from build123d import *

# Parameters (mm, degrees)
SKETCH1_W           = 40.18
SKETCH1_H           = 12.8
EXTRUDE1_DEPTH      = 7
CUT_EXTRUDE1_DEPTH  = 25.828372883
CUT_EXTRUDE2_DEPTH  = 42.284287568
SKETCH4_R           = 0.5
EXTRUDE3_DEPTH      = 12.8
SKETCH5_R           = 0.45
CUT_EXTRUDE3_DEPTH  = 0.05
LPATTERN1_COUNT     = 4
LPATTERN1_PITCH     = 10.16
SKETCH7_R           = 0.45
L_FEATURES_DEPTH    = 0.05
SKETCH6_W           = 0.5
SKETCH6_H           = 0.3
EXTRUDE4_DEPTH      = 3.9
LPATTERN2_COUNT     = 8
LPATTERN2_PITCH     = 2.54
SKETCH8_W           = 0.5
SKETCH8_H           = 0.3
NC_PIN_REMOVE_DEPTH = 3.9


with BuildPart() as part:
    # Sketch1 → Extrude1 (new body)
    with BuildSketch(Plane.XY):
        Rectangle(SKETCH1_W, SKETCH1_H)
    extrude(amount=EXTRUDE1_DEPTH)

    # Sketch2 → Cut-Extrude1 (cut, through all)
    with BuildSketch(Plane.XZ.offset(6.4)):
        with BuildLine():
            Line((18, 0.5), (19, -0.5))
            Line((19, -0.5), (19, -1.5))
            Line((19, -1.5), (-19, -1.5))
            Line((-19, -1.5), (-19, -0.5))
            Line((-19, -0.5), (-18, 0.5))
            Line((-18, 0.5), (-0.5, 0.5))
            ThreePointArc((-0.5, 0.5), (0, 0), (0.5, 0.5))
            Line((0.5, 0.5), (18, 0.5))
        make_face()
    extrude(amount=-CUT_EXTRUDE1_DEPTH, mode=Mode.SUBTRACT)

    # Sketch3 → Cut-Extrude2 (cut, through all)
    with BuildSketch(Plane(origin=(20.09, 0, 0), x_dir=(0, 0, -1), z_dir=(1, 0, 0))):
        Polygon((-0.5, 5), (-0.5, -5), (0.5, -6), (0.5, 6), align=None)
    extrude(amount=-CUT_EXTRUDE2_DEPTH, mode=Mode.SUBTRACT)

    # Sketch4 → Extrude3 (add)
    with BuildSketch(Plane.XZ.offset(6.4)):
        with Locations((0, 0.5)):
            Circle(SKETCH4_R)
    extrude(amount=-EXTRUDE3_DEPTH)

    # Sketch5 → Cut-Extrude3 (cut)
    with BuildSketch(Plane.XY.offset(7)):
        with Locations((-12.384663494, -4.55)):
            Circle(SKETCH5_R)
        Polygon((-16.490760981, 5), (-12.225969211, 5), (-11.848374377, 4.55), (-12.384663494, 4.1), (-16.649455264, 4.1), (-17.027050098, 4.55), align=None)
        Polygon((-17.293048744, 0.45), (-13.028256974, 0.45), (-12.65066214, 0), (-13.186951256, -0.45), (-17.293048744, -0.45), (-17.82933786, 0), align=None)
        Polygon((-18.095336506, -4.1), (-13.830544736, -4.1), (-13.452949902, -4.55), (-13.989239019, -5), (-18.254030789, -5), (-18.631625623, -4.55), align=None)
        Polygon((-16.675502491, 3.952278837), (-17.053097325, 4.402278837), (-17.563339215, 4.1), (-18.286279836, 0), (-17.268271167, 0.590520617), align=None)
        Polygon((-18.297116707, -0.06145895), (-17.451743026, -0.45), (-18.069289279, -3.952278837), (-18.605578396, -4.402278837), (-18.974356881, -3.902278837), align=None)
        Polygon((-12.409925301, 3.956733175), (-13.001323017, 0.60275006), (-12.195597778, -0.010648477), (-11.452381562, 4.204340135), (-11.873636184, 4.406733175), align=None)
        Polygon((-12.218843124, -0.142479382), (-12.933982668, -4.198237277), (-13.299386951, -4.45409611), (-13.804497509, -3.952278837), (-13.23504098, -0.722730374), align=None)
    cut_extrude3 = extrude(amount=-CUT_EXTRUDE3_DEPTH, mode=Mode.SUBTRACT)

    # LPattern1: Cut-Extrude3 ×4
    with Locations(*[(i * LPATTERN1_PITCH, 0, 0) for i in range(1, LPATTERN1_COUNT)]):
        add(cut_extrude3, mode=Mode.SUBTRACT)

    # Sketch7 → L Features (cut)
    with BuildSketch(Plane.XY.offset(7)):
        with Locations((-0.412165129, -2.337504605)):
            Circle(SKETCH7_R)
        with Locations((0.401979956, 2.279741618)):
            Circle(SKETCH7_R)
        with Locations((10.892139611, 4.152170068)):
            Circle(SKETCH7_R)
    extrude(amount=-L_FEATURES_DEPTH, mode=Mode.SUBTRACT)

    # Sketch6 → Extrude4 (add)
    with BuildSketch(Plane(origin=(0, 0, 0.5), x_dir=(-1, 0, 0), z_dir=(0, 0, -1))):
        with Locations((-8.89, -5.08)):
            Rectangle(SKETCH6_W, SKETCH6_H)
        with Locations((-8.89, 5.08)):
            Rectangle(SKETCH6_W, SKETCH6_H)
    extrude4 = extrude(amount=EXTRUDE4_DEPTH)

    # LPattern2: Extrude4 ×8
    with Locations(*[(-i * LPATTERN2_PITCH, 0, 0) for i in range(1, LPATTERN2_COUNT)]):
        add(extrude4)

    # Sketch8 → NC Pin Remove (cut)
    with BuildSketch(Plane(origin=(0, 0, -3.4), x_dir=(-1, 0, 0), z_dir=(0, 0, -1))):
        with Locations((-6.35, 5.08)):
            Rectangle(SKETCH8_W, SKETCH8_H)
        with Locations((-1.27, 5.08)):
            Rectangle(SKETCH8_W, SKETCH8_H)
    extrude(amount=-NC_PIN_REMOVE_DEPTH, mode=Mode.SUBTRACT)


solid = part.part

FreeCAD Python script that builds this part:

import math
import FreeCAD as App
import Part
import Sketcher

V = App.Vector
Q = App.Units.Quantity

doc = App.newDocument("Part")
params = doc.addObject("Spreadsheet::Sheet", "Params")
for row, (alias, value) in enumerate([
    ("sketch1_height", "12.8 mm"),
    ("sketch1_width", "40.18 mm"),
    ("pad1_length", "7 mm"),
    ("sketch2_radius", "0.5 mm"),
    ("sketch2_width", "38 mm"),
    ("sketch2_height", "1 mm"),
    ("sketch2_width2", "17.5 mm"),
    ("sketch3_width", "10 mm"),
    ("sketch3_width2", "12 mm"),
    ("sketch4_diameter", "1 mm"),
    ("pad2_length", "12.8 mm"),
    ("sketch5_diameter", "0.9 mm"),
    ("pocket3_length", "0.05 mm"),
    ("linearpattern_pitch", "10.16 mm"),
    ("sketch6_diameter", "0.9 mm"),
    ("pocket4_length", "0.05 mm"),
    ("sketch7_width", "0.5 mm"),
    ("sketch7_height", "0.3 mm"),
    ("pad3_length", "3.9 mm"),
    ("linearpattern2_pitch", "2.54 mm"),
    ("sketch8_width", "0.5 mm"),
    ("sketch8_height", "0.3 mm"),
    ("pocket5_length", "3.9 mm"),
], start=1):
    params.set(f"A{row}", alias)
    params.set(f"B{row}", "=" + value)
    params.setAlias(f"B{row}", alias)

body = doc.addObject("PartDesign::Body", "Body")

sketch1 = body.newObject("Sketcher::SketchObject", "Sketch")
sketch1.AttachmentSupport = (doc.getObject("XY_Plane"), [""])
sketch1.MapMode = "FlatFace"
sketch1.addGeometry(Part.LineSegment(V(-20.09, 6.4, 0), V(-20.09, -6.4, 0)), False)
sketch1.addGeometry(Part.LineSegment(V(-20.09, -6.4, 0), V(20.09, -6.4, 0)), False)
sketch1.addGeometry(Part.LineSegment(V(20.09, -6.4, 0), V(20.09, 6.4, 0)), False)
sketch1.addGeometry(Part.LineSegment(V(20.09, 6.4, 0), V(-20.09, 6.4, 0)), False)
sketch1.addConstraint(Sketcher.Constraint("Coincident", 0, 2, 1, 1))
sketch1.addConstraint(Sketcher.Constraint("Coincident", 1, 2, 2, 1))
sketch1.addConstraint(Sketcher.Constraint("Coincident", 2, 2, 3, 1))
sketch1.addConstraint(Sketcher.Constraint("Coincident", 3, 2, 0, 1))
sketch1.addConstraint(Sketcher.Constraint("Vertical", 0))
sketch1.addConstraint(Sketcher.Constraint("Horizontal", 1))
sketch1.addConstraint(Sketcher.Constraint("Vertical", 2))
sketch1.addConstraint(Sketcher.Constraint("Horizontal", 3))
sketch1.addConstraint(Sketcher.Constraint("Symmetric", 0, 2, 2, 2, -1, 1))
sketch1.addConstraint(Sketcher.Constraint("DistanceY", 0, 2, 0, 1, Q("12.8 mm")))
sketch1.addConstraint(Sketcher.Constraint("DistanceX", 1, 1, 1, 2, Q("40.18 mm")))
sketch1.setExpression("Constraints[9]", "Params.sketch1_height")
sketch1.setExpression("Constraints[10]", "Params.sketch1_width")
pad1 = body.newObject("PartDesign::Pad", "Pad")
pad1.Profile = sketch1
pad1.setExpression("Length", "Params.pad1_length")

sketch2 = body.newObject("Sketcher::SketchObject", "Sketch001")
sketch2.AttachmentSupport = (doc.getObject("XZ_Plane"), [""])
sketch2.MapMode = "FlatFace"
sketch2.AttachmentOffset = App.Placement(V(0, 0, 6.4), App.Rotation())
sketch2.addGeometry(Part.LineSegment(V(19, -0.5, 0), V(18, 0.5, 0)), False)
sketch2.addGeometry(Part.LineSegment(V(18, 0.5, 0), V(0.5, 0.5, 0)), False)
sketch2.addGeometry(Part.ArcOfCircle(Part.Circle(V(0, 0.5, 0), V(0, 0, 1), 0.5), math.radians(180), math.radians(360)), False)
sketch2.addGeometry(Part.LineSegment(V(-0.5, 0.5, 0), V(-18, 0.5, 0)), False)
sketch2.addGeometry(Part.LineSegment(V(-18, 0.5, 0), V(-19, -0.5, 0)), False)
sketch2.addGeometry(Part.LineSegment(V(-19, -0.5, 0), V(-19, -1.5, 0)), False)
sketch2.addGeometry(Part.LineSegment(V(-19, -1.5, 0), V(19, -1.5, 0)), False)
sketch2.addGeometry(Part.LineSegment(V(19, -1.5, 0), V(19, -0.5, 0)), False)
sketch2.addConstraint(Sketcher.Constraint("Coincident", 0, 2, 1, 1))
sketch2.addConstraint(Sketcher.Constraint("Coincident", 1, 2, 2, 2))
sketch2.addConstraint(Sketcher.Constraint("Coincident", 2, 1, 3, 1))
sketch2.addConstraint(Sketcher.Constraint("Coincident", 3, 2, 4, 1))
sketch2.addConstraint(Sketcher.Constraint("Coincident", 4, 2, 5, 1))
sketch2.addConstraint(Sketcher.Constraint("Coincident", 5, 2, 6, 1))
sketch2.addConstraint(Sketcher.Constraint("Coincident", 6, 2, 7, 1))
sketch2.addConstraint(Sketcher.Constraint("Coincident", 7, 2, 0, 1))
sketch2.addConstraint(Sketcher.Constraint("Horizontal", 1))
sketch2.addConstraint(Sketcher.Constraint("Horizontal", 3))
sketch2.addConstraint(Sketcher.Constraint("Vertical", 5))
sketch2.addConstraint(Sketcher.Constraint("Horizontal", 6))
sketch2.addConstraint(Sketcher.Constraint("Vertical", 7))
sketch2.addConstraint(Sketcher.Constraint("Symmetric", 1, 2, 2, 1, -2))
sketch2.addConstraint(Sketcher.Constraint("Symmetric", 4, 2, 7, 2, -2))
sketch2.addConstraint(Sketcher.Constraint("Perpendicular", 0, 4))
sketch2.addConstraint(Sketcher.Constraint("Horizontal", 2, 3, 0, 2))
sketch2.addConstraint(Sketcher.Constraint("Equal", 1, 3))
sketch2.addConstraint(Sketcher.Constraint("Radius", 2, Q("0.5 mm")))
sketch2.addConstraint(Sketcher.Constraint("DistanceX", 6, 1, 6, 2, Q("38 mm")))
sketch2.addConstraint(Sketcher.Constraint("DistanceY", 5, 2, 5, 1, Q("1 mm")))
sketch2.addConstraint(Sketcher.Constraint("DistanceX", 1, 2, 1, 1, Q("17.5 mm")))
sketch2.addConstraint(Sketcher.Constraint("DistanceY", -1, 1, 2, 3, Q("0.5 mm")))
sketch2.setExpression("Constraints[18]", "Params.sketch2_radius")
sketch2.setExpression("Constraints[19]", "Params.sketch2_width")
sketch2.setExpression("Constraints[20]", "Params.sketch2_height")
sketch2.setExpression("Constraints[21]", "Params.sketch2_width2")
pocket1 = body.newObject("PartDesign::Pocket", "Pocket")
pocket1.Profile = sketch2
pocket1.Type = "ThroughAll"

sketch3 = body.newObject("Sketcher::SketchObject", "Sketch002")
sketch3.AttachmentSupport = (doc.getObject("YZ_Plane"), [""])
sketch3.MapMode = "FlatFace"
sketch3.AttachmentOffset = App.Placement(V(0, 0, 20.09), App.Rotation())
sketch3.addGeometry(Part.LineSegment(V(5, 0.5, 0), V(-5, 0.5, 0)), False)
sketch3.addGeometry(Part.LineSegment(V(-5, 0.5, 0), V(-6, -0.5, 0)), False)
sketch3.addGeometry(Part.LineSegment(V(-6, -0.5, 0), V(6, -0.5, 0)), False)
sketch3.addGeometry(Part.LineSegment(V(6, -0.5, 0), V(5, 0.5, 0)), False)
sketch3.addConstraint(Sketcher.Constraint("Coincident", 0, 2, 1, 1))
sketch3.addConstraint(Sketcher.Constraint("Coincident", 1, 2, 2, 1))
sketch3.addConstraint(Sketcher.Constraint("Coincident", 2, 2, 3, 1))
sketch3.addConstraint(Sketcher.Constraint("Coincident", 3, 2, 0, 1))
sketch3.addConstraint(Sketcher.Constraint("Horizontal", 0))
sketch3.addConstraint(Sketcher.Constraint("Horizontal", 2))
sketch3.addConstraint(Sketcher.Constraint("Perpendicular", 1, 3))
sketch3.addConstraint(Sketcher.Constraint("Equal", 1, 3))
sketch3.addConstraint(Sketcher.Constraint("DistanceX", 0, 2, 0, 1, Q("10 mm")))
sketch3.addConstraint(Sketcher.Constraint("DistanceX", 2, 1, 2, 2, Q("12 mm")))
sketch3.addConstraint(Sketcher.Constraint("DistanceX", 0, 2, -1, 1, Q("5 mm")))
sketch3.addConstraint(Sketcher.Constraint("DistanceY", -1, 1, 0, 2, Q("0.5 mm")))
sketch3.setExpression("Constraints[8]", "Params.sketch3_width")
sketch3.setExpression("Constraints[9]", "Params.sketch3_width2")
pocket2 = body.newObject("PartDesign::Pocket", "Pocket001")
pocket2.Profile = sketch3
pocket2.Type = "ThroughAll"

sketch4 = body.newObject("Sketcher::SketchObject", "Sketch003")
sketch4.AttachmentSupport = (doc.getObject("XZ_Plane"), [""])
sketch4.MapMode = "FlatFace"
sketch4.AttachmentOffset = App.Placement(V(0, 0, 6.4), App.Rotation())
sketch4.addGeometry(Part.Circle(V(0, 0.5, 0), V(0, 0, 1), 0.5), False)
sketch4.addConstraint(Sketcher.Constraint("PointOnObject", 0, 3, -2))
sketch4.addConstraint(Sketcher.Constraint("Diameter", 0, Q("1 mm")))
sketch4.addConstraint(Sketcher.Constraint("DistanceY", -1, 1, 0, 3, Q("0.5 mm")))
sketch4.setExpression("Constraints[1]", "Params.sketch4_diameter")
pad2 = body.newObject("PartDesign::Pad", "Pad001")
pad2.Profile = sketch4
pad2.setExpression("Length", "Params.pad2_length")
pad2.Reversed = True

sketch5 = body.newObject("Sketcher::SketchObject", "Sketch004")
sketch5.AttachmentSupport = (doc.getObject("XY_Plane"), [""])
sketch5.MapMode = "FlatFace"
sketch5.AttachmentOffset = App.Placement(V(0, 0, 7), App.Rotation())
sketch5.addGeometry(Part.Circle(V(-12.384663, -4.55, 0), V(0, 0, 1), 0.45), False)
sketch5.addGeometry(Part.LineSegment(V(-12.225969, 5, 0), V(-16.490761, 5, 0)), False)
sketch5.addGeometry(Part.LineSegment(V(-16.490761, 5, 0), V(-17.02705, 4.55, 0)), False)
sketch5.addGeometry(Part.LineSegment(V(-17.02705, 4.55, 0), V(-16.649455, 4.1, 0)), False)
sketch5.addGeometry(Part.LineSegment(V(-16.649455, 4.1, 0), V(-12.384663, 4.1, 0)), False)
sketch5.addGeometry(Part.LineSegment(V(-12.384663, 4.1, 0), V(-11.848374, 4.55, 0)), False)
sketch5.addGeometry(Part.LineSegment(V(-11.848374, 4.55, 0), V(-12.225969, 5, 0)), False)
sketch5.addGeometry(Part.LineSegment(V(-13.028257, 0.45, 0), V(-17.293049, 0.45, 0)), False)
sketch5.addGeometry(Part.LineSegment(V(-17.293049, 0.45, 0), V(-17.829338, 0, 0)), False)
sketch5.addGeometry(Part.LineSegment(V(-17.829338, 0, 0), V(-17.293049, -0.45, 0)), False)
sketch5.addGeometry(Part.LineSegment(V(-17.293049, -0.45, 0), V(-13.186951, -0.45, 0)), False)
sketch5.addGeometry(Part.LineSegment(V(-13.186951, -0.45, 0), V(-12.650662, 0, 0)), False)
sketch5.addGeometry(Part.LineSegment(V(-12.650662, 0, 0), V(-13.028257, 0.45, 0)), False)
sketch5.addGeometry(Part.LineSegment(V(-13.830545, -4.1, 0), V(-18.095337, -4.1, 0)), False)
sketch5.addGeometry(Part.LineSegment(V(-18.095337, -4.1, 0), V(-18.631626, -4.55, 0)), False)
sketch5.addGeometry(Part.LineSegment(V(-18.631626, -4.55, 0), V(-18.254031, -5, 0)), False)
sketch5.addGeometry(Part.LineSegment(V(-18.254031, -5, 0), V(-13.989239, -5, 0)), False)
sketch5.addGeometry(Part.LineSegment(V(-13.989239, -5, 0), V(-13.45295, -4.55, 0)), False)
sketch5.addGeometry(Part.LineSegment(V(-13.45295, -4.55, 0), V(-13.830545, -4.1, 0)), False)
sketch5.addGeometry(Part.LineSegment(V(-16.675502, 3.952279, 0), V(-17.053097, 4.402279, 0)), False)
sketch5.addGeometry(Part.LineSegment(V(-17.053097, 4.402279, 0), V(-17.563339, 4.1, 0)), False)
sketch5.addGeometry(Part.LineSegment(V(-17.563339, 4.1, 0), V(-18.28628, 0, 0)), False)
sketch5.addGeometry(Part.LineSegment(V(-18.28628, 0, 0), V(-17.268271, 0.590521, 0)), False)
sketch5.addGeometry(Part.LineSegment(V(-17.268271, 0.590521, 0), V(-16.675502, 3.952279, 0)), False)
sketch5.addGeometry(Part.LineSegment(V(-17.451743, -0.45, 0), V(-18.297117, -0.061459, 0)), False)
sketch5.addGeometry(Part.LineSegment(V(-18.297117, -0.061459, 0), V(-18.974357, -3.902279, 0)), False)
sketch5.addGeometry(Part.LineSegment(V(-18.974357, -3.902279, 0), V(-18.605578, -4.402279, 0)), False)
sketch5.addGeometry(Part.LineSegment(V(-18.605578, -4.402279, 0), V(-18.069289, -3.952279, 0)), False)
sketch5.addGeometry(Part.LineSegment(V(-18.069289, -3.952279, 0), V(-17.451743, -0.45, 0)), False)
sketch5.addGeometry(Part.LineSegment(V(-12.409925, 3.956733, 0), V(-13.001323, 0.60275, 0)), False)
sketch5.addGeometry(Part.LineSegment(V(-13.001323, 0.60275, 0), V(-12.195598, -0.010648, 0)), False)
sketch5.addGeometry(Part.LineSegment(V(-12.195598, -0.010648, 0), V(-11.452382, 4.20434, 0)), False)
sketch5.addGeometry(Part.LineSegment(V(-11.452382, 4.20434, 0), V(-11.873636, 4.406733, 0)), False)
sketch5.addGeometry(Part.LineSegment(V(-11.873636, 4.406733, 0), V(-12.409925, 3.956733, 0)), False)
sketch5.addGeometry(Part.LineSegment(V(-12.933983, -4.198237, 0), V(-12.218843, -0.142479, 0)), False)
sketch5.addGeometry(Part.LineSegment(V(-12.218843, -0.142479, 0), V(-13.235041, -0.72273, 0)), False)
sketch5.addGeometry(Part.LineSegment(V(-13.235041, -0.72273, 0), V(-13.804498, -3.952279, 0)), False)
sketch5.addGeometry(Part.LineSegment(V(-13.804498, -3.952279, 0), V(-13.299387, -4.454096, 0)), False)
sketch5.addGeometry(Part.LineSegment(V(-13.299387, -4.454096, 0), V(-12.933983, -4.198237, 0)), False)
sketch5.addConstraint(Sketcher.Constraint("Coincident", 1, 2, 2, 1))
sketch5.addConstraint(Sketcher.Constraint("Coincident", 2, 2, 3, 1))
sketch5.addConstraint(Sketcher.Constraint("Coincident", 3, 2, 4, 1))
sketch5.addConstraint(Sketcher.Constraint("Coincident", 4, 2, 5, 1))
sketch5.addConstraint(Sketcher.Constraint("Coincident", 5, 2, 6, 1))
sketch5.addConstraint(Sketcher.Constraint("Coincident", 6, 2, 1, 1))
sketch5.addConstraint(Sketcher.Constraint("Coincident", 7, 2, 8, 1))
sketch5.addConstraint(Sketcher.Constraint("Coincident", 8, 2, 9, 1))
sketch5.addConstraint(Sketcher.Constraint("Coincident", 9, 2, 10, 1))
sketch5.addConstraint(Sketcher.Constraint("Coincident", 10, 2, 11, 1))
sketch5.addConstraint(Sketcher.Constraint("Coincident", 11, 2, 12, 1))
sketch5.addConstraint(Sketcher.Constraint("Coincident", 12, 2, 7, 1))
sketch5.addConstraint(Sketcher.Constraint("Coincident", 13, 2, 14, 1))
sketch5.addConstraint(Sketcher.Constraint("Coincident", 14, 2, 15, 1))
sketch5.addConstraint(Sketcher.Constraint("Coincident", 15, 2, 16, 1))
sketch5.addConstraint(Sketcher.Constraint("Coincident", 16, 2, 17, 1))
sketch5.addConstraint(Sketcher.Constraint("Coincident", 17, 2, 18, 1))
sketch5.addConstraint(Sketcher.Constraint("Coincident", 18, 2, 13, 1))
sketch5.addConstraint(Sketcher.Constraint("Coincident", 19, 2, 20, 1))
sketch5.addConstraint(Sketcher.Constraint("Coincident", 20, 2, 21, 1))
sketch5.addConstraint(Sketcher.Constraint("Coincident", 21, 2, 22, 1))
sketch5.addConstraint(Sketcher.Constraint("Coincident", 22, 2, 23, 1))
sketch5.addConstraint(Sketcher.Constraint("Coincident", 23, 2, 19, 1))
sketch5.addConstraint(Sketcher.Constraint("Coincident", 24, 2, 25, 1))
sketch5.addConstraint(Sketcher.Constraint("Coincident", 25, 2, 26, 1))
sketch5.addConstraint(Sketcher.Constraint("Coincident", 26, 2, 27, 1))
sketch5.addConstraint(Sketcher.Constraint("Coincident", 27, 2, 28, 1))
sketch5.addConstraint(Sketcher.Constraint("Coincident", 28, 2, 24, 1))
sketch5.addConstraint(Sketcher.Constraint("Coincident", 29, 2, 30, 1))
sketch5.addConstraint(Sketcher.Constraint("Coincident", 30, 2, 31, 1))
sketch5.addConstraint(Sketcher.Constraint("Coincident", 31, 2, 32, 1))
sketch5.addConstraint(Sketcher.Constraint("Coincident", 32, 2, 33, 1))
sketch5.addConstraint(Sketcher.Constraint("Coincident", 33, 2, 29, 1))
sketch5.addConstraint(Sketcher.Constraint("Coincident", 34, 2, 35, 1))
sketch5.addConstraint(Sketcher.Constraint("Coincident", 35, 2, 36, 1))
sketch5.addConstraint(Sketcher.Constraint("Coincident", 36, 2, 37, 1))
sketch5.addConstraint(Sketcher.Constraint("Coincident", 37, 2, 38, 1))
sketch5.addConstraint(Sketcher.Constraint("Coincident", 38, 2, 34, 1))
sketch5.addConstraint(Sketcher.Constraint("Horizontal", 1))
sketch5.addConstraint(Sketcher.Constraint("Horizontal", 4))
sketch5.addConstraint(Sketcher.Constraint("Horizontal", 7))
sketch5.addConstraint(Sketcher.Constraint("Horizontal", 10))
sketch5.addConstraint(Sketcher.Constraint("Horizontal", 13))
sketch5.addConstraint(Sketcher.Constraint("Horizontal", 16))
sketch5.addConstraint(Sketcher.Constraint("Symmetric", 7, 2, 9, 2, -1))
sketch5.addConstraint(Sketcher.Constraint("PointOnObject", 8, 2, -1))
sketch5.addConstraint(Sketcher.Constraint("PointOnObject", 11, 2, -1))
sketch5.addConstraint(Sketcher.Constraint("PointOnObject", 21, 2, -1))
sketch5.addConstraint(Sketcher.Constraint("Perpendicular", 2, 3))
sketch5.addConstraint(Sketcher.Constraint("Perpendicular", 3, 5))
sketch5.addConstraint(Sketcher.Constraint("Perpendicular", 5, 6))
sketch5.addConstraint(Sketcher.Constraint("Perpendicular", 6, 8))
sketch5.addConstraint(Sketcher.Constraint("Parallel", 8, 11))
sketch5.addConstraint(Sketcher.Constraint("Perpendicular", 11, 12))
sketch5.addConstraint(Sketcher.Constraint("Perpendicular", 12, 14))
sketch5.addConstraint(Sketcher.Constraint("Perpendicular", 14, 15))
sketch5.addConstraint(Sketcher.Constraint("Perpendicular", 15, 17))
sketch5.addConstraint(Sketcher.Constraint("Perpendicular", 17, 18))
sketch5.addConstraint(Sketcher.Constraint("Parallel", 18, 19))
sketch5.addConstraint(Sketcher.Constraint("Parallel", 21, 23))
sketch5.addConstraint(Sketcher.Constraint("Parallel", 23, 25))
sketch5.addConstraint(Sketcher.Constraint("Perpendicular", 19, 27))
sketch5.addConstraint(Sketcher.Constraint("Parallel", 25, 28))
sketch5.addConstraint(Sketcher.Constraint("Parallel", 28, 29))
sketch5.addConstraint(Sketcher.Constraint("Parallel", 29, 31))
sketch5.addConstraint(Sketcher.Constraint("Parallel", 27, 33))
sketch5.addConstraint(Sketcher.Constraint("Parallel", 31, 34))
sketch5.addConstraint(Sketcher.Constraint("Parallel", 34, 36))
sketch5.addConstraint(Sketcher.Constraint("Horizontal", 2, 2, 5, 2))
sketch5.addConstraint(Sketcher.Constraint("Horizontal", 0, 3, 14, 2))
sketch5.addConstraint(Sketcher.Constraint("Horizontal", 14, 2, 17, 2))
sketch5.addConstraint(Sketcher.Constraint("Horizontal", 4, 2, 20, 2))
sketch5.addConstraint(Sketcher.Constraint("Horizontal", 10, 2, 28, 2))
sketch5.addConstraint(Sketcher.Constraint("Horizontal", 27, 2, 36, 2))
sketch5.addConstraint(Sketcher.Constraint("Vertical", 0, 3, 4, 2))
sketch5.addConstraint(Sketcher.Constraint("Equal", 1, 4))
sketch5.addConstraint(Sketcher.Constraint("Equal", 4, 7))
sketch5.addConstraint(Sketcher.Constraint("Equal", 7, 13))
sketch5.addConstraint(Sketcher.Constraint("Equal", 13, 16))
sketch5.addConstraint(Sketcher.Constraint("Equal", 5, 8))
sketch5.addConstraint(Sketcher.Constraint("Equal", 11, 14))
sketch5.addConstraint(Sketcher.Constraint("Equal", 18, 19))
sketch5.addConstraint(Sketcher.Constraint("Equal", 17, 27))
sketch5.addConstraint(Sketcher.Constraint("Equal", 27, 33))
sketch5.addConstraint(Sketcher.Constraint("Diameter", 0, Q("0.9 mm")))
sketch5.addConstraint(Sketcher.Constraint("Angle", 2, Q("-140 deg")))
sketch5.addConstraint(Sketcher.Constraint("Angle", 21, Q("-100 deg")))
sketch5.addConstraint(Sketcher.Constraint("Angle", 38, Q("35 deg")))
sketch5.addConstraint(Sketcher.Constraint("DistanceY", -1, 1, 1, 2, Q("5 mm")))
sketch5.addConstraint(Sketcher.Constraint("DistanceY", 15, 2, -1, 1, Q("5 mm")))
sketch5.addConstraint(Sketcher.Constraint("DistanceY", -1, 1, 3, 2, Q("4.1 mm")))
sketch5.addConstraint(Sketcher.Constraint("DistanceY", 26, 2, 25, 2, Q("0.5 mm")))
sketch5.addConstraint(Sketcher.Constraint("DistanceX", 7, 2, 2, 2, Q("0.265999 mm")))
sketch5.addConstraint(Sketcher.Constraint("DistanceX", 13, 2, 8, 2, Q("0.265999 mm")))
sketch5.addConstraint(Sketcher.Constraint("DistanceX", 1, 2, 1, 1, Q("4.264792 mm")))
sketch5.addConstraint(Sketcher.Constraint("DistanceY", 30, 2, 29, 2, Q("0.613399 mm")))
sketch5.addConstraint(Sketcher.Constraint("Distance", 20, Q("0.593059 mm")))
sketch5.addConstraint(Sketcher.Constraint("Distance", 23, Q("3.413619 mm")))
sketch5.addConstraint(Sketcher.Constraint("Distance", 25, Q("3.900071 mm")))
sketch5.addConstraint(Sketcher.Constraint("Distance", 31, Q("4.280012 mm")))
sketch5.addConstraint(Sketcher.Constraint("Distance", 35, Q("1.170192 mm")))
sketch5.addConstraint(Sketcher.Constraint("Distance", 36, Q("3.279369 mm")))
sketch5.addConstraint(Sketcher.Constraint("Distance", 37, Q("0.712009 mm")))
sketch5.addConstraint(Sketcher.Constraint("DistanceX", 1, 2, -1, 1, Q("16.490761 mm")))
sketch5.addConstraint(Sketcher.Constraint("DistanceY", -1, 1, 19, 2, Q("4.402279 mm")))
sketch5.addConstraint(Sketcher.Constraint("DistanceX", 20, 2, -1, 1, Q("17.563339 mm")))
sketch5.addConstraint(Sketcher.Constraint("DistanceY", 24, 2, -1, 1, Q("0.061459 mm")))
sketch5.addConstraint(Sketcher.Constraint("DistanceX", 26, 2, -1, 1, Q("18.605578 mm")))
sketch5.addConstraint(Sketcher.Constraint("DistanceY", -1, 1, 29, 2, Q("0.60275 mm")))
sketch5.addConstraint(Sketcher.Constraint("DistanceX", 31, 2, -1, 1, Q("11.452382 mm")))
sketch5.addConstraint(Sketcher.Constraint("DistanceY", 34, 2, -1, 1, Q("0.142479 mm")))
sketch5.addConstraint(Sketcher.Constraint("DistanceX", 35, 2, -1, 1, Q("13.235041 mm")))
sketch5.addConstraint(Sketcher.Constraint("DistanceX", 24, 2, 8, 2, Q("0.467779 mm")))
sketch5.addConstraint(Sketcher.Constraint("DistanceX", 29, 2, 11, 2, Q("0.350661 mm")))
sketch5.addConstraint(Sketcher.Constraint("DistanceX", 32, 2, 5, 2, Q("0.025262 mm")))
sketch5.addConstraint(Sketcher.Constraint("DistanceX", 36, 2, 37, 2, Q("0.505111 mm")))
sketch5.setExpression("Constraints[84]", "Params.sketch5_diameter")
pocket3 = body.newObject("PartDesign::Pocket", "Pocket002")
pocket3.Profile = sketch5
pocket3.setExpression("Length", "Params.pocket3_length")
doc.recompute()

linearpattern = body.newObject("PartDesign::LinearPattern", "LinearPattern")
linearpattern.Originals = [pocket3]
linearpattern.Direction = (doc.getObject("X_Axis"), [""])
linearpattern.Mode = "offset"
linearpattern.setExpression("Offset", "Params.linearpattern_pitch")
linearpattern.Occurrences = 4
body.Tip = linearpattern

sketch6 = body.newObject("Sketcher::SketchObject", "Sketch005")
sketch6.AttachmentSupport = (doc.getObject("XY_Plane"), [""])
sketch6.MapMode = "FlatFace"
sketch6.AttachmentOffset = App.Placement(V(0, 0, 7), App.Rotation())
sketch6.addGeometry(Part.Circle(V(-0.412165, -2.337505, 0), V(0, 0, 1), 0.45), False)
sketch6.addGeometry(Part.Circle(V(0.40198, 2.279742, 0), V(0, 0, 1), 0.45), False)
sketch6.addGeometry(Part.Circle(V(10.89214, 4.15217, 0), V(0, 0, 1), 0.45), False)
sketch6.addConstraint(Sketcher.Constraint("Equal", 0, 1))
sketch6.addConstraint(Sketcher.Constraint("Equal", 1, 2))
sketch6.addConstraint(Sketcher.Constraint("Diameter", 0, Q("0.9 mm")))
sketch6.addConstraint(Sketcher.Constraint("DistanceX", -1, 1, 1, 3, Q("0.40198 mm")))
sketch6.addConstraint(Sketcher.Constraint("DistanceY", -1, 1, 1, 3, Q("2.279742 mm")))
sketch6.addConstraint(Sketcher.Constraint("DistanceX", -1, 1, 2, 3, Q("10.89214 mm")))
sketch6.addConstraint(Sketcher.Constraint("DistanceY", -1, 1, 2, 3, Q("4.15217 mm")))
sketch6.addConstraint(Sketcher.Constraint("DistanceX", 0, 3, -1, 1, Q("0.412165 mm")))
sketch6.addConstraint(Sketcher.Constraint("DistanceY", 0, 3, -1, 1, Q("2.337505 mm")))
sketch6.setExpression("Constraints[2]", "Params.sketch6_diameter")
pocket4 = body.newObject("PartDesign::Pocket", "Pocket003")
pocket4.Profile = sketch6
pocket4.setExpression("Length", "Params.pocket4_length")

sketch7 = body.newObject("Sketcher::SketchObject", "Sketch006")
sketch7.AttachmentSupport = (doc.getObject("XY_Plane"), [""])
sketch7.MapMode = "FlatFace"
sketch7.AttachmentOffset = App.Placement(V(0, 0, 0.5), App.Rotation())
sketch7.addGeometry(Part.LineSegment(V(9.14, -4.93, 0), V(9.14, -5.23, 0)), False)
sketch7.addGeometry(Part.LineSegment(V(9.14, -5.23, 0), V(8.64, -5.23, 0)), False)
sketch7.addGeometry(Part.LineSegment(V(8.64, -5.23, 0), V(8.64, -4.93, 0)), False)
sketch7.addGeometry(Part.LineSegment(V(8.64, -4.93, 0), V(9.14, -4.93, 0)), False)
sketch7.addGeometry(Part.LineSegment(V(9.14, 5.23, 0), V(9.14, 4.93, 0)), False)
sketch7.addGeometry(Part.LineSegment(V(9.14, 4.93, 0), V(8.64, 4.93, 0)), False)
sketch7.addGeometry(Part.LineSegment(V(8.64, 4.93, 0), V(8.64, 5.23, 0)), False)
sketch7.addGeometry(Part.LineSegment(V(8.64, 5.23, 0), V(9.14, 5.23, 0)), False)
sketch7.addConstraint(Sketcher.Constraint("Coincident", 0, 2, 1, 1))
sketch7.addConstraint(Sketcher.Constraint("Coincident", 1, 2, 2, 1))
sketch7.addConstraint(Sketcher.Constraint("Coincident", 2, 2, 3, 1))
sketch7.addConstraint(Sketcher.Constraint("Coincident", 3, 2, 0, 1))
sketch7.addConstraint(Sketcher.Constraint("Coincident", 4, 2, 5, 1))
sketch7.addConstraint(Sketcher.Constraint("Coincident", 5, 2, 6, 1))
sketch7.addConstraint(Sketcher.Constraint("Coincident", 6, 2, 7, 1))
sketch7.addConstraint(Sketcher.Constraint("Coincident", 7, 2, 4, 1))
sketch7.addConstraint(Sketcher.Constraint("Vertical", 0))
sketch7.addConstraint(Sketcher.Constraint("Horizontal", 1))
sketch7.addConstraint(Sketcher.Constraint("Vertical", 2))
sketch7.addConstraint(Sketcher.Constraint("Horizontal", 3))
sketch7.addConstraint(Sketcher.Constraint("Vertical", 4))
sketch7.addConstraint(Sketcher.Constraint("Horizontal", 5))
sketch7.addConstraint(Sketcher.Constraint("Vertical", 6))
sketch7.addConstraint(Sketcher.Constraint("Horizontal", 7))
sketch7.addConstraint(Sketcher.Constraint("Symmetric", 3, 2, 4, 2, -1))
sketch7.addConstraint(Sketcher.Constraint("Symmetric", 1, 2, 6, 2, -1))
sketch7.addConstraint(Sketcher.Constraint("DistanceX", 1, 2, 1, 1, Q("0.5 mm")))
sketch7.addConstraint(Sketcher.Constraint("DistanceY", 0, 2, 0, 1, Q("0.3 mm")))
sketch7.addConstraint(Sketcher.Constraint("DistanceX", -1, 1, 0, 2, Q("9.14 mm")))
sketch7.addConstraint(Sketcher.Constraint("DistanceY", 0, 2, -1, 1, Q("5.23 mm")))
sketch7.setExpression("Constraints[18]", "Params.sketch7_width")
sketch7.setExpression("Constraints[19]", "Params.sketch7_height")
pad3 = body.newObject("PartDesign::Pad", "Pad002")
pad3.Profile = sketch7
pad3.setExpression("Length", "Params.pad3_length")
pad3.Reversed = True
doc.recompute()

linearpattern2 = body.newObject("PartDesign::LinearPattern", "LinearPattern001")
linearpattern2.Originals = [pad3]
linearpattern2.Direction = (doc.getObject("X_Axis"), [""])
linearpattern2.Mode = "offset"
linearpattern2.setExpression("Offset", "Params.linearpattern2_pitch")
linearpattern2.Occurrences = 8
linearpattern2.Reversed = True
body.Tip = linearpattern2

sketch8 = body.newObject("Sketcher::SketchObject", "Sketch007")
sketch8.AttachmentSupport = (doc.getObject("XY_Plane"), [""])
sketch8.MapMode = "FlatFace"
sketch8.AttachmentOffset = App.Placement(V(0, 0, -3.4), App.Rotation())
sketch8.addGeometry(Part.LineSegment(V(6.6, 5.23, 0), V(6.6, 4.93, 0)), False)
sketch8.addGeometry(Part.LineSegment(V(6.6, 4.93, 0), V(6.1, 4.93, 0)), False)
sketch8.addGeometry(Part.LineSegment(V(6.1, 4.93, 0), V(6.1, 5.23, 0)), False)
sketch8.addGeometry(Part.LineSegment(V(6.1, 5.23, 0), V(6.6, 5.23, 0)), False)
sketch8.addGeometry(Part.LineSegment(V(1.52, 5.23, 0), V(1.52, 4.93, 0)), False)
sketch8.addGeometry(Part.LineSegment(V(1.52, 4.93, 0), V(1.02, 4.93, 0)), False)
sketch8.addGeometry(Part.LineSegment(V(1.02, 4.93, 0), V(1.02, 5.23, 0)), False)
sketch8.addGeometry(Part.LineSegment(V(1.02, 5.23, 0), V(1.52, 5.23, 0)), False)
sketch8.addConstraint(Sketcher.Constraint("Coincident", 0, 2, 1, 1))
sketch8.addConstraint(Sketcher.Constraint("Coincident", 1, 2, 2, 1))
sketch8.addConstraint(Sketcher.Constraint("Coincident", 2, 2, 3, 1))
sketch8.addConstraint(Sketcher.Constraint("Coincident", 3, 2, 0, 1))
sketch8.addConstraint(Sketcher.Constraint("Coincident", 4, 2, 5, 1))
sketch8.addConstraint(Sketcher.Constraint("Coincident", 5, 2, 6, 1))
sketch8.addConstraint(Sketcher.Constraint("Coincident", 6, 2, 7, 1))
sketch8.addConstraint(Sketcher.Constraint("Coincident", 7, 2, 4, 1))
sketch8.addConstraint(Sketcher.Constraint("Vertical", 0))
sketch8.addConstraint(Sketcher.Constraint("Horizontal", 1))
sketch8.addConstraint(Sketcher.Constraint("Vertical", 2))
sketch8.addConstraint(Sketcher.Constraint("Horizontal", 3))
sketch8.addConstraint(Sketcher.Constraint("Vertical", 4))
sketch8.addConstraint(Sketcher.Constraint("Horizontal", 5))
sketch8.addConstraint(Sketcher.Constraint("Vertical", 6))
sketch8.addConstraint(Sketcher.Constraint("Horizontal", 7))
sketch8.addConstraint(Sketcher.Constraint("Horizontal", 1, 2, 4, 2))
sketch8.addConstraint(Sketcher.Constraint("Horizontal", 3, 2, 6, 2))
sketch8.addConstraint(Sketcher.Constraint("Equal", 3, 5))
sketch8.addConstraint(Sketcher.Constraint("DistanceX", 1, 2, 1, 1, Q("0.5 mm")))
sketch8.addConstraint(Sketcher.Constraint("DistanceY", 0, 2, 0, 1, Q("0.3 mm")))
sketch8.addConstraint(Sketcher.Constraint("DistanceX", -1, 1, 0, 2, Q("6.6 mm")))
sketch8.addConstraint(Sketcher.Constraint("DistanceY", -1, 1, 0, 2, Q("4.93 mm")))
sketch8.addConstraint(Sketcher.Constraint("DistanceX", -1, 1, 4, 2, Q("1.52 mm")))
sketch8.setExpression("Constraints[19]", "Params.sketch8_width")
sketch8.setExpression("Constraints[20]", "Params.sketch8_height")
pocket5 = body.newObject("PartDesign::Pocket", "Pocket004")
pocket5.Profile = sketch8
pocket5.setExpression("Length", "Params.pocket5_length")
pocket5.Reversed = True

doc.recompute()
